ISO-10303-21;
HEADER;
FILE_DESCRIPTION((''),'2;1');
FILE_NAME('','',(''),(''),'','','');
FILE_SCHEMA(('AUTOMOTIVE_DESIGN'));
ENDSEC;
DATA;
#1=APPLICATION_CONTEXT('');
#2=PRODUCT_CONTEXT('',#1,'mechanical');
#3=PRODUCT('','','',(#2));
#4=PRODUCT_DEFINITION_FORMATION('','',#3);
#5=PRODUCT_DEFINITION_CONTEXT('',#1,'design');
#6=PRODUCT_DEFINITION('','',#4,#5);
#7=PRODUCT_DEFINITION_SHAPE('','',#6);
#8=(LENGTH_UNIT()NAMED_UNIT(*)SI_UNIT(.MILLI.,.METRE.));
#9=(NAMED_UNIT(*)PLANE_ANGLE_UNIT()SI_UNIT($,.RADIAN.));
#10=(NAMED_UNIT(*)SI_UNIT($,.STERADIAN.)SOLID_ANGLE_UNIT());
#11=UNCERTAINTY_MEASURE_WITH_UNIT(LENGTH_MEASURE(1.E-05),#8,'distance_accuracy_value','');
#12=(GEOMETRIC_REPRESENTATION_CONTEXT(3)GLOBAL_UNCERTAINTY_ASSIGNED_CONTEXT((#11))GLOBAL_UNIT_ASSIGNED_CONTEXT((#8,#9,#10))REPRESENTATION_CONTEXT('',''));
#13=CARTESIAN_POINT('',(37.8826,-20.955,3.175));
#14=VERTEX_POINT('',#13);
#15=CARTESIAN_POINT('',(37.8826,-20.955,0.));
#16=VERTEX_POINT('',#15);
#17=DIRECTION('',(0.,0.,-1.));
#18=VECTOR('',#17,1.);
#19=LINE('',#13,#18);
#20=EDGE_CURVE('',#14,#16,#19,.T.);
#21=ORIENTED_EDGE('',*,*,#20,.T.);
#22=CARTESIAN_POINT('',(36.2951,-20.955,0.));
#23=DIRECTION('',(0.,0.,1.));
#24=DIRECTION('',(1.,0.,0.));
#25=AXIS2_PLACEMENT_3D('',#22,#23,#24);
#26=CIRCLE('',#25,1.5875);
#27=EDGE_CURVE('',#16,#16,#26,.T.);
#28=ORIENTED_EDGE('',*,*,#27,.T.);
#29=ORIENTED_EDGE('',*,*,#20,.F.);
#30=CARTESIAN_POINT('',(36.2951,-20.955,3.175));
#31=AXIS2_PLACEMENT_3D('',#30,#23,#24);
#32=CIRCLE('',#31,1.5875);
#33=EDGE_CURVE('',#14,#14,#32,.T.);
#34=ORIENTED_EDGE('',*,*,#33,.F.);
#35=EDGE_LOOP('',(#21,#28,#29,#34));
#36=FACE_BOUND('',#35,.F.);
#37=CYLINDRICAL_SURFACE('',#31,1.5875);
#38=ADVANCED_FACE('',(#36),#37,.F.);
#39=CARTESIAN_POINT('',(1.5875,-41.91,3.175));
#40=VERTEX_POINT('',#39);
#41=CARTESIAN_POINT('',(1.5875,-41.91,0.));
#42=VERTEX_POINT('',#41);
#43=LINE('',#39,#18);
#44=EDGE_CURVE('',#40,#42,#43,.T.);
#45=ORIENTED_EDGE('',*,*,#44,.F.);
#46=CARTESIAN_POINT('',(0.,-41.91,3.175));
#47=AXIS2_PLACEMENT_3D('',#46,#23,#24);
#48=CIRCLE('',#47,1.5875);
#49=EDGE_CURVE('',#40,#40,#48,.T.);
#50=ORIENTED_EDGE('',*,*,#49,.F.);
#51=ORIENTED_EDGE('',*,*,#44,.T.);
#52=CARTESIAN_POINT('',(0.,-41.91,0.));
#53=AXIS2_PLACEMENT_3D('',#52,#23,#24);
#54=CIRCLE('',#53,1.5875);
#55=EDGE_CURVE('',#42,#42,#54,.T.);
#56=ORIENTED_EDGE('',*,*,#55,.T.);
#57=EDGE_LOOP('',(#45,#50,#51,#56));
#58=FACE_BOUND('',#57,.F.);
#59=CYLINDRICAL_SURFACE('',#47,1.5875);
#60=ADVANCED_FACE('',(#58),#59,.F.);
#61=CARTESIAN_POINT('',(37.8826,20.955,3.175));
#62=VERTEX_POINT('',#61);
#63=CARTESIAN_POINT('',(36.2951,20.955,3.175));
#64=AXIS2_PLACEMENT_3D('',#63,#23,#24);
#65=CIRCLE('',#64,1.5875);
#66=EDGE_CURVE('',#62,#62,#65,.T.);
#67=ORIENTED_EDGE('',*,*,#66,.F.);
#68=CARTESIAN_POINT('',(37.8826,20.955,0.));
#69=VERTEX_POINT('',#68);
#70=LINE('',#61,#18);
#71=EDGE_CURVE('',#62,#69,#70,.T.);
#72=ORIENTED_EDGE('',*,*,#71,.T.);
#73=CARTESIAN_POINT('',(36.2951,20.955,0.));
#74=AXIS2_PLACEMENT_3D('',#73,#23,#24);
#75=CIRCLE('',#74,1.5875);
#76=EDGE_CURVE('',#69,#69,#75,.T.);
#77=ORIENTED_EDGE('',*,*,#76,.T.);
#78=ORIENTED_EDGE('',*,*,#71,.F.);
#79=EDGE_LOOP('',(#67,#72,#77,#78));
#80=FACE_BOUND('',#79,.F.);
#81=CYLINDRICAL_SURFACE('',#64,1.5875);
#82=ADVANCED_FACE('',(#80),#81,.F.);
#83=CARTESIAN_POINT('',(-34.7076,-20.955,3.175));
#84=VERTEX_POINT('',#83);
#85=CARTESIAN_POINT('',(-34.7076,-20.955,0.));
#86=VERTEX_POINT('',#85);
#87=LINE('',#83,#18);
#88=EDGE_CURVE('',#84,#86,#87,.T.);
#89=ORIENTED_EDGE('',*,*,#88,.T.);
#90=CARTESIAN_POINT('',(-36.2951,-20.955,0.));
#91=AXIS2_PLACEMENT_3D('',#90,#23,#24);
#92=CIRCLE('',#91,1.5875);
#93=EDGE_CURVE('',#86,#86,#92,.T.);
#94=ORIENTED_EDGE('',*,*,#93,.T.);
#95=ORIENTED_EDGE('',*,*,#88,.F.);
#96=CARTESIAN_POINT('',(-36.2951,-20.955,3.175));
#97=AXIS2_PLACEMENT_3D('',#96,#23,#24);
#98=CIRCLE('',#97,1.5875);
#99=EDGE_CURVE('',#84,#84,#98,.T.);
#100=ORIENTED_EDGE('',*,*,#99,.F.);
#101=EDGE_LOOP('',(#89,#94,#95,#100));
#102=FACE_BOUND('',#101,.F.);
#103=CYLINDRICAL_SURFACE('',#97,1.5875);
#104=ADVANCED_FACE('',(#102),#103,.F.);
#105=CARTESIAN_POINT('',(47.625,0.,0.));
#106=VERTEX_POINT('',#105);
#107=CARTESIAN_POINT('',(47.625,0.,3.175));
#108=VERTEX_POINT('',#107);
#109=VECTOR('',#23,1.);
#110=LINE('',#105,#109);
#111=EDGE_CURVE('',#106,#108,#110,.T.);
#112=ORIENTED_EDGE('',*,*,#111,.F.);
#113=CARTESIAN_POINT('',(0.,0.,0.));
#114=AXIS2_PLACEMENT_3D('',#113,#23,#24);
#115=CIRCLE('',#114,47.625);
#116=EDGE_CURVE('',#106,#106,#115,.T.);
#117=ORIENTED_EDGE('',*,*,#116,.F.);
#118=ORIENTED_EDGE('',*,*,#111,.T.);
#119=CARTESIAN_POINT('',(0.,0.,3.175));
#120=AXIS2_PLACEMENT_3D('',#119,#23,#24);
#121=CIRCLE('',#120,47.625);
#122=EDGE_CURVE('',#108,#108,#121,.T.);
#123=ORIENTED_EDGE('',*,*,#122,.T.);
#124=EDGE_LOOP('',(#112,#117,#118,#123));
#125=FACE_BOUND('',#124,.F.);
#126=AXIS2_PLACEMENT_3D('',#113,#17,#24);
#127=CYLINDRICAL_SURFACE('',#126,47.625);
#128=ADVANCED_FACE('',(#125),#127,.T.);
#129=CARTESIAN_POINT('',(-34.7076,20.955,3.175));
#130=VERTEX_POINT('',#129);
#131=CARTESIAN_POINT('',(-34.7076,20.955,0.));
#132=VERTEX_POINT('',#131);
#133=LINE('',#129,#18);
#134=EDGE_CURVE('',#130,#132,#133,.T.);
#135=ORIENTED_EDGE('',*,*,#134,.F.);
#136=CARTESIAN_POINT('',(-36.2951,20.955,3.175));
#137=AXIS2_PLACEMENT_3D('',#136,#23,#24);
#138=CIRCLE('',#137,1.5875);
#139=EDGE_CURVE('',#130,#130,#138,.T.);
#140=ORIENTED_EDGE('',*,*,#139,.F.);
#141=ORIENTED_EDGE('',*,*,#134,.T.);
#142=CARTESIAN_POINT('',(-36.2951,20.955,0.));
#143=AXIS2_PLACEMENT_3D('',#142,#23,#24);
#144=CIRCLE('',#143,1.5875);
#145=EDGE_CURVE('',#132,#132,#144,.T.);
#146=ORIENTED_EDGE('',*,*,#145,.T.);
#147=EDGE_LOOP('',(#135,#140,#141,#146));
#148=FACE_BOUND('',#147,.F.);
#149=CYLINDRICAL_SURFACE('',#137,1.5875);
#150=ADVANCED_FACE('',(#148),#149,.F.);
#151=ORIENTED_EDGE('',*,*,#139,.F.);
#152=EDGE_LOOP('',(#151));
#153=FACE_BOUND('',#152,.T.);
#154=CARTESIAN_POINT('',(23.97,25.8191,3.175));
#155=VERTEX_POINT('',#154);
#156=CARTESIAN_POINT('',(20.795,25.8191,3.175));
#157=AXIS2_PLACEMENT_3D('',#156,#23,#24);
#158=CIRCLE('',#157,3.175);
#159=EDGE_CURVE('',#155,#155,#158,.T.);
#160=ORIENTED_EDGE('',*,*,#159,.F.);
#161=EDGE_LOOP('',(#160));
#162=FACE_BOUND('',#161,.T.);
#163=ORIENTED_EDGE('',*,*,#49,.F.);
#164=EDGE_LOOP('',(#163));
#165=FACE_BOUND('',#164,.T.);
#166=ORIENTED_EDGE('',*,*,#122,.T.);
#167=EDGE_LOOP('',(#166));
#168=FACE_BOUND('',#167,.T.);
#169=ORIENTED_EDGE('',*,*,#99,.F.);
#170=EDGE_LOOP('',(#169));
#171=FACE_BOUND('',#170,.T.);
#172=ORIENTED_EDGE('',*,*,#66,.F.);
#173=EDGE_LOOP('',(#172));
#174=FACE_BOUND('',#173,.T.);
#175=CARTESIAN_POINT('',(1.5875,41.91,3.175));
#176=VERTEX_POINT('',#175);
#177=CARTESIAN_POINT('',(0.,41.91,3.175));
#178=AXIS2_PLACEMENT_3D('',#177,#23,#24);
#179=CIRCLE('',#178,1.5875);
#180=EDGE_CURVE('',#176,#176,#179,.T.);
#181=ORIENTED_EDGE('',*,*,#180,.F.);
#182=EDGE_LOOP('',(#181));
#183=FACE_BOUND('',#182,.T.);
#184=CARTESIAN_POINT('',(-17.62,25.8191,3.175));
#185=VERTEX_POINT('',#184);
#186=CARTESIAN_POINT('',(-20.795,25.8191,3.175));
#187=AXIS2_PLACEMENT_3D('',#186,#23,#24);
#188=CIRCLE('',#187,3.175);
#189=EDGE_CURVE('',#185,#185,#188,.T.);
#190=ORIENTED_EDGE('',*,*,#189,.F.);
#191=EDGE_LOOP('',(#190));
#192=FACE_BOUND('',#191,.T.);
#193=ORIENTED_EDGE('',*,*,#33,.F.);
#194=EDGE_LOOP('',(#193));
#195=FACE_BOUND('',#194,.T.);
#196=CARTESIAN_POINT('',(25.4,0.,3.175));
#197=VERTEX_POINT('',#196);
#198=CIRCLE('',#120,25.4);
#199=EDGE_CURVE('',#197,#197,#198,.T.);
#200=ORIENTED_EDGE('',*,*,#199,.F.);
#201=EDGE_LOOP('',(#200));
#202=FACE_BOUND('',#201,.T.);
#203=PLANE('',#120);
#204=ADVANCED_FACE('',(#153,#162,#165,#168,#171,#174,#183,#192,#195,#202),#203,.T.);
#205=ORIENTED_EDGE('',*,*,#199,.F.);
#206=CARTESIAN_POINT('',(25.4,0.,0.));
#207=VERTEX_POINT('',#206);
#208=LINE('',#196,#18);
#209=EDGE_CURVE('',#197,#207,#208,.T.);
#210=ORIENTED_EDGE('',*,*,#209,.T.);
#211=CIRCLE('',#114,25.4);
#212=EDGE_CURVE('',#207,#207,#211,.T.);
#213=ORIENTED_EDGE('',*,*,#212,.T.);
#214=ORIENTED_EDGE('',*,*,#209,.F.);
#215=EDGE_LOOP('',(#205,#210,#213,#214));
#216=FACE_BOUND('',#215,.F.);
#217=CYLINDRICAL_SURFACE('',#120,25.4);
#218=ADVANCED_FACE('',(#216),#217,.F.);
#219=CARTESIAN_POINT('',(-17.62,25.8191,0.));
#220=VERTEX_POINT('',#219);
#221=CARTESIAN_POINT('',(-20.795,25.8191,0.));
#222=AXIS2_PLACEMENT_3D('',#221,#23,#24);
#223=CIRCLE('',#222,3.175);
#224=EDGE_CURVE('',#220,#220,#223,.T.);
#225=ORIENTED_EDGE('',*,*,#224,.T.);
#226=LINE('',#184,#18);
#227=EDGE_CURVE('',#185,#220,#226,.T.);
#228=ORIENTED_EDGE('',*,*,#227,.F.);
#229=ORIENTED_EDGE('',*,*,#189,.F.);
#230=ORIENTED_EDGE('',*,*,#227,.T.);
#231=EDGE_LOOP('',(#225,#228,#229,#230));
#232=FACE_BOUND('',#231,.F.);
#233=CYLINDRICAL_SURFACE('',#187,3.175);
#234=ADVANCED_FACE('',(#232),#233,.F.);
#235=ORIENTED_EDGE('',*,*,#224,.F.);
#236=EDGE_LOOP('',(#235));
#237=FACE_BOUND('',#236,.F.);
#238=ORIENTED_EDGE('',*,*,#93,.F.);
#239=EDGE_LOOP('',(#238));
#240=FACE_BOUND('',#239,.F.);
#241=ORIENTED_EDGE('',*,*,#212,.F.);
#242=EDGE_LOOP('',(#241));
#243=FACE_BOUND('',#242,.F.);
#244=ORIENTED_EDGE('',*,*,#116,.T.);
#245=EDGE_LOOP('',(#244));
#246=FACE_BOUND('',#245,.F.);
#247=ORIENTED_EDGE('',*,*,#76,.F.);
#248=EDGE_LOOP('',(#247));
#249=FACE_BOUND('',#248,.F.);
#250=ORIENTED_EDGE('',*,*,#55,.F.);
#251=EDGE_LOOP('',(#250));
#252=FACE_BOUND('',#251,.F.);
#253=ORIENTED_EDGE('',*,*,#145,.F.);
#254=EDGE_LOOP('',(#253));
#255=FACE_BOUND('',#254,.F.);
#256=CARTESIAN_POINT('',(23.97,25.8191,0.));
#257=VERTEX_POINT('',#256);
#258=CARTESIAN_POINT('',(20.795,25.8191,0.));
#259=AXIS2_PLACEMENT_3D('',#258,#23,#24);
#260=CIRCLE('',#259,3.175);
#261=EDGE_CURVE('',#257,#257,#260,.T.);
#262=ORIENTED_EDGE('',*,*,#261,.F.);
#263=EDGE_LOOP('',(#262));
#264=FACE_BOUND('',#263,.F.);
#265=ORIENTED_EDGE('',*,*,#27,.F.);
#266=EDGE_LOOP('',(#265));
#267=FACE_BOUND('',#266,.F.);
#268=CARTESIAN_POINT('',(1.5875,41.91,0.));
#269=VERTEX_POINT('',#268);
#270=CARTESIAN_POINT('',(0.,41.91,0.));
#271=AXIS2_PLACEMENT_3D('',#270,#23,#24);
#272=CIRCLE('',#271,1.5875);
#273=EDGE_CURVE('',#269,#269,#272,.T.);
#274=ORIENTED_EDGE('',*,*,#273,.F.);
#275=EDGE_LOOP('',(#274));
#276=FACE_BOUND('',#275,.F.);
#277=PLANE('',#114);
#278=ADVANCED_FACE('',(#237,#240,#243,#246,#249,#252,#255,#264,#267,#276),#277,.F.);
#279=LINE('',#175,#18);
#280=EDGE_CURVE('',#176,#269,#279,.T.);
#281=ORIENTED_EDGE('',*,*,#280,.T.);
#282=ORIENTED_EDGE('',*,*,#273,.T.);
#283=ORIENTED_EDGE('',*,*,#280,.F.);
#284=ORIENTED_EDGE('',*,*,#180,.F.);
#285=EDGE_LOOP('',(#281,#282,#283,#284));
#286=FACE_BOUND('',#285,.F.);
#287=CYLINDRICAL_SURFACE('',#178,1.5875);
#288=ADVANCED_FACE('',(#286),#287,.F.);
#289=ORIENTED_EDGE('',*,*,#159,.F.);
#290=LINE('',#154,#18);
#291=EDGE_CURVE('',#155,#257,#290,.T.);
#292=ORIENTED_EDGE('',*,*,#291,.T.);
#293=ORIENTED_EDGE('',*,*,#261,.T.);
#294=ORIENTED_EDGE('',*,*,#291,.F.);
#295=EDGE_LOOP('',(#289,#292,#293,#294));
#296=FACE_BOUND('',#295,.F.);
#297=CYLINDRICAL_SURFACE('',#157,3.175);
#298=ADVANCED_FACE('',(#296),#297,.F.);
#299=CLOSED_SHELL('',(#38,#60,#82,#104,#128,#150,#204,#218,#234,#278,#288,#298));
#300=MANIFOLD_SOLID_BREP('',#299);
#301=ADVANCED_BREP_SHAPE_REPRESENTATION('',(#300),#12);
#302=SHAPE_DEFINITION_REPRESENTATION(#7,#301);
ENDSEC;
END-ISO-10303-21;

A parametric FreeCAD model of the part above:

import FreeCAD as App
import Part
import Sketcher
from FreeCAD import Vector
Q = App.Units.Quantity

doc = App.newDocument("Part")
params = doc.addObject("Spreadsheet::Sheet", "Params")
for row, (alias, value) in enumerate([
    ("sketch1_diameter", "3.75 in"),
    ("pad1_length", "0.125 in"),
    ("sketch2_diameter", "0.125 in"),
    ("pocket1_length", "0.125 in"),
    ("sketch3_diameter", "2 in"),
    ("pocket2_length", "0.125 in"),
    ("sketch4_diameter", "0.25 in"),
    ("pocket3_length", "1 in"),
], start=1):
    params.set(f"A{row}", alias)
    params.set(f"B{row}", "=" + value)
    params.setAlias(f"B{row}", alias)

body = doc.addObject("PartDesign::Body", "Body")

# Sketch on XY plane
sketch1 = body.newObject("Sketcher::SketchObject", "Sketch")
sketch1.AttachmentSupport = (doc.getObject("XY_Plane"), [""])
sketch1.MapMode = "FlatFace"
sketch1.addGeometry(Part.Circle(Vector(0, 0, 0), Vector(0, 0, 1), 48), False)
sketch1.addConstraint(Sketcher.Constraint("Coincident", 0, 3, -1, 1))
sketch1.addConstraint(Sketcher.Constraint("Diameter", 0, Q("3.75 in")))
sketch1.setExpression("Constraints[1]", "Params.sketch1_diameter")
pad1 = body.newObject("PartDesign::Pad", "Pad")
pad1.Profile = sketch1
pad1.setExpression("Length", "Params.pad1_length")

# Sketch on XY plane
sketch2 = body.newObject("Sketcher::SketchObject", "Sketch001")
sketch2.AttachmentSupport = (doc.getObject("XY_Plane"), [""])
sketch2.MapMode = "FlatFace"
sketch2.AttachmentOffset = App.Placement(Vector(0, 0, 0.125 * 25.4), App.Rotation())
sketch2.addGeometry(Part.Circle(Vector(0, 41.9, 0), Vector(0, 0, 1), 1.6), False)
sketch2.addGeometry(Part.Circle(Vector(-36.3, 21, 0), Vector(0, 0, 1), 1.6), False)
sketch2.addGeometry(Part.Circle(Vector(-36.3, -21, 0), Vector(0, 0, 1), 1.6), False)
sketch2.addGeometry(Part.Circle(Vector(0, -41.9, 0), Vector(0, 0, 1), 1.6), False)
sketch2.addGeometry(Part.Circle(Vector(36.3, -21, 0), Vector(0, 0, 1), 1.6), False)
sketch2.addGeometry(Part.Circle(Vector(36.3, 21, 0), Vector(0, 0, 1), 1.6), False)
sketch2.addConstraint(Sketcher.Constraint("Equal", 0, 1))
sketch2.addConstraint(Sketcher.Constraint("Equal", 1, 2))
sketch2.addConstraint(Sketcher.Constraint("Equal", 2, 3))
sketch2.addConstraint(Sketcher.Constraint("Equal", 3, 4))
sketch2.addConstraint(Sketcher.Constraint("Equal", 4, 5))
sketch2.addConstraint(Sketcher.Constraint("Symmetric", 0, 3, 3, 3, -1, 1))
sketch2.addConstraint(Sketcher.Constraint("Symmetric", 1, 3, 4, 3, -1, 1))
sketch2.addConstraint(Sketcher.Constraint("Symmetric", 2, 3, 5, 3, -1, 1))
sketch2.addConstraint(Sketcher.Constraint("Symmetric", 2, 3, 4, 3, -2))
sketch2.addConstraint(Sketcher.Constraint("PointOnObject", 0, 3, -2))
sketch2.addConstraint(Sketcher.Constraint("Diameter", 0, Q("0.125 in")))
sketch2.addConstraint(Sketcher.Constraint("DistanceY", -1, 1, 0, 3, Q("1.65 in")))
sketch2.addConstraint(Sketcher.Constraint("DistanceY", 2, 3, 1, 3, Q("1.65 in")))
sketch2.addConstraint(Sketcher.Constraint("DistanceX", 1, 3, -1, 1, Q("36.295 mm")))
sketch2.setExpression("Constraints[10]", "Params.sketch2_diameter")
pocket1 = body.newObject("PartDesign::Pocket", "Pocket")
pocket1.Profile = sketch2
pocket1.setExpression("Length", "Params.pocket1_length")

# Sketch on XY plane
sketch3 = body.newObject("Sketcher::SketchObject", "Sketch002")
sketch3.AttachmentSupport = (doc.getObject("XY_Plane"), [""])
sketch3.MapMode = "FlatFace"
sketch3.AttachmentOffset = App.Placement(Vector(0, 0, 0.125 * 25.4), App.Rotation())
sketch3.addGeometry(Part.Circle(Vector(0, 0, 0), Vector(0, 0, 1), 25), False)
sketch3.addConstraint(Sketcher.Constraint("Coincident", 0, 3, -1, 1))
sketch3.addConstraint(Sketcher.Constraint("Diameter", 0, Q("2 in")))
sketch3.setExpression("Constraints[1]", "Params.sketch3_diameter")
pocket2 = body.newObject("PartDesign::Pocket", "Pocket001")
pocket2.Profile = sketch3
pocket2.setExpression("Length", "Params.pocket2_length")

# Sketch on XY plane
sketch4 = body.newObject("Sketcher::SketchObject", "Sketch003")
sketch4.AttachmentSupport = (doc.getObject("XY_Plane"), [""])
sketch4.MapMode = "FlatFace"
sketch4.AttachmentOffset = App.Placement(Vector(0, 0, 0.125 * 25.4), App.Rotation())
sketch4.addGeometry(Part.Circle(Vector(20.8, 25.8, 0), Vector(0, 0, 1), 3.2), False)
sketch4.addGeometry(Part.Circle(Vector(-20.8, 25.8, 0), Vector(0, 0, 1), 3.2), False)
sketch4.addConstraint(Sketcher.Constraint("Equal", 0, 1))
sketch4.addConstraint(Sketcher.Constraint("Symmetric", 0, 3, 1, 3, -2))
sketch4.addConstraint(Sketcher.Constraint("Diameter", 0, Q("0.25 in")))
sketch4.addConstraint(Sketcher.Constraint("DistanceX", -1, 1, 0, 3, Q("0.8187 in")))
sketch4.addConstraint(Sketcher.Constraint("DistanceY", -1, 1, 0, 3, Q("1.0165 in")))
sketch4.setExpression("Constraints[2]", "Params.sketch4_diameter")
pocket3 = body.newObject("PartDesign::Pocket", "Pocket002")
pocket3.Profile = sketch4
pocket3.setExpression("Length", "Params.pocket3_length")

doc.recompute()
